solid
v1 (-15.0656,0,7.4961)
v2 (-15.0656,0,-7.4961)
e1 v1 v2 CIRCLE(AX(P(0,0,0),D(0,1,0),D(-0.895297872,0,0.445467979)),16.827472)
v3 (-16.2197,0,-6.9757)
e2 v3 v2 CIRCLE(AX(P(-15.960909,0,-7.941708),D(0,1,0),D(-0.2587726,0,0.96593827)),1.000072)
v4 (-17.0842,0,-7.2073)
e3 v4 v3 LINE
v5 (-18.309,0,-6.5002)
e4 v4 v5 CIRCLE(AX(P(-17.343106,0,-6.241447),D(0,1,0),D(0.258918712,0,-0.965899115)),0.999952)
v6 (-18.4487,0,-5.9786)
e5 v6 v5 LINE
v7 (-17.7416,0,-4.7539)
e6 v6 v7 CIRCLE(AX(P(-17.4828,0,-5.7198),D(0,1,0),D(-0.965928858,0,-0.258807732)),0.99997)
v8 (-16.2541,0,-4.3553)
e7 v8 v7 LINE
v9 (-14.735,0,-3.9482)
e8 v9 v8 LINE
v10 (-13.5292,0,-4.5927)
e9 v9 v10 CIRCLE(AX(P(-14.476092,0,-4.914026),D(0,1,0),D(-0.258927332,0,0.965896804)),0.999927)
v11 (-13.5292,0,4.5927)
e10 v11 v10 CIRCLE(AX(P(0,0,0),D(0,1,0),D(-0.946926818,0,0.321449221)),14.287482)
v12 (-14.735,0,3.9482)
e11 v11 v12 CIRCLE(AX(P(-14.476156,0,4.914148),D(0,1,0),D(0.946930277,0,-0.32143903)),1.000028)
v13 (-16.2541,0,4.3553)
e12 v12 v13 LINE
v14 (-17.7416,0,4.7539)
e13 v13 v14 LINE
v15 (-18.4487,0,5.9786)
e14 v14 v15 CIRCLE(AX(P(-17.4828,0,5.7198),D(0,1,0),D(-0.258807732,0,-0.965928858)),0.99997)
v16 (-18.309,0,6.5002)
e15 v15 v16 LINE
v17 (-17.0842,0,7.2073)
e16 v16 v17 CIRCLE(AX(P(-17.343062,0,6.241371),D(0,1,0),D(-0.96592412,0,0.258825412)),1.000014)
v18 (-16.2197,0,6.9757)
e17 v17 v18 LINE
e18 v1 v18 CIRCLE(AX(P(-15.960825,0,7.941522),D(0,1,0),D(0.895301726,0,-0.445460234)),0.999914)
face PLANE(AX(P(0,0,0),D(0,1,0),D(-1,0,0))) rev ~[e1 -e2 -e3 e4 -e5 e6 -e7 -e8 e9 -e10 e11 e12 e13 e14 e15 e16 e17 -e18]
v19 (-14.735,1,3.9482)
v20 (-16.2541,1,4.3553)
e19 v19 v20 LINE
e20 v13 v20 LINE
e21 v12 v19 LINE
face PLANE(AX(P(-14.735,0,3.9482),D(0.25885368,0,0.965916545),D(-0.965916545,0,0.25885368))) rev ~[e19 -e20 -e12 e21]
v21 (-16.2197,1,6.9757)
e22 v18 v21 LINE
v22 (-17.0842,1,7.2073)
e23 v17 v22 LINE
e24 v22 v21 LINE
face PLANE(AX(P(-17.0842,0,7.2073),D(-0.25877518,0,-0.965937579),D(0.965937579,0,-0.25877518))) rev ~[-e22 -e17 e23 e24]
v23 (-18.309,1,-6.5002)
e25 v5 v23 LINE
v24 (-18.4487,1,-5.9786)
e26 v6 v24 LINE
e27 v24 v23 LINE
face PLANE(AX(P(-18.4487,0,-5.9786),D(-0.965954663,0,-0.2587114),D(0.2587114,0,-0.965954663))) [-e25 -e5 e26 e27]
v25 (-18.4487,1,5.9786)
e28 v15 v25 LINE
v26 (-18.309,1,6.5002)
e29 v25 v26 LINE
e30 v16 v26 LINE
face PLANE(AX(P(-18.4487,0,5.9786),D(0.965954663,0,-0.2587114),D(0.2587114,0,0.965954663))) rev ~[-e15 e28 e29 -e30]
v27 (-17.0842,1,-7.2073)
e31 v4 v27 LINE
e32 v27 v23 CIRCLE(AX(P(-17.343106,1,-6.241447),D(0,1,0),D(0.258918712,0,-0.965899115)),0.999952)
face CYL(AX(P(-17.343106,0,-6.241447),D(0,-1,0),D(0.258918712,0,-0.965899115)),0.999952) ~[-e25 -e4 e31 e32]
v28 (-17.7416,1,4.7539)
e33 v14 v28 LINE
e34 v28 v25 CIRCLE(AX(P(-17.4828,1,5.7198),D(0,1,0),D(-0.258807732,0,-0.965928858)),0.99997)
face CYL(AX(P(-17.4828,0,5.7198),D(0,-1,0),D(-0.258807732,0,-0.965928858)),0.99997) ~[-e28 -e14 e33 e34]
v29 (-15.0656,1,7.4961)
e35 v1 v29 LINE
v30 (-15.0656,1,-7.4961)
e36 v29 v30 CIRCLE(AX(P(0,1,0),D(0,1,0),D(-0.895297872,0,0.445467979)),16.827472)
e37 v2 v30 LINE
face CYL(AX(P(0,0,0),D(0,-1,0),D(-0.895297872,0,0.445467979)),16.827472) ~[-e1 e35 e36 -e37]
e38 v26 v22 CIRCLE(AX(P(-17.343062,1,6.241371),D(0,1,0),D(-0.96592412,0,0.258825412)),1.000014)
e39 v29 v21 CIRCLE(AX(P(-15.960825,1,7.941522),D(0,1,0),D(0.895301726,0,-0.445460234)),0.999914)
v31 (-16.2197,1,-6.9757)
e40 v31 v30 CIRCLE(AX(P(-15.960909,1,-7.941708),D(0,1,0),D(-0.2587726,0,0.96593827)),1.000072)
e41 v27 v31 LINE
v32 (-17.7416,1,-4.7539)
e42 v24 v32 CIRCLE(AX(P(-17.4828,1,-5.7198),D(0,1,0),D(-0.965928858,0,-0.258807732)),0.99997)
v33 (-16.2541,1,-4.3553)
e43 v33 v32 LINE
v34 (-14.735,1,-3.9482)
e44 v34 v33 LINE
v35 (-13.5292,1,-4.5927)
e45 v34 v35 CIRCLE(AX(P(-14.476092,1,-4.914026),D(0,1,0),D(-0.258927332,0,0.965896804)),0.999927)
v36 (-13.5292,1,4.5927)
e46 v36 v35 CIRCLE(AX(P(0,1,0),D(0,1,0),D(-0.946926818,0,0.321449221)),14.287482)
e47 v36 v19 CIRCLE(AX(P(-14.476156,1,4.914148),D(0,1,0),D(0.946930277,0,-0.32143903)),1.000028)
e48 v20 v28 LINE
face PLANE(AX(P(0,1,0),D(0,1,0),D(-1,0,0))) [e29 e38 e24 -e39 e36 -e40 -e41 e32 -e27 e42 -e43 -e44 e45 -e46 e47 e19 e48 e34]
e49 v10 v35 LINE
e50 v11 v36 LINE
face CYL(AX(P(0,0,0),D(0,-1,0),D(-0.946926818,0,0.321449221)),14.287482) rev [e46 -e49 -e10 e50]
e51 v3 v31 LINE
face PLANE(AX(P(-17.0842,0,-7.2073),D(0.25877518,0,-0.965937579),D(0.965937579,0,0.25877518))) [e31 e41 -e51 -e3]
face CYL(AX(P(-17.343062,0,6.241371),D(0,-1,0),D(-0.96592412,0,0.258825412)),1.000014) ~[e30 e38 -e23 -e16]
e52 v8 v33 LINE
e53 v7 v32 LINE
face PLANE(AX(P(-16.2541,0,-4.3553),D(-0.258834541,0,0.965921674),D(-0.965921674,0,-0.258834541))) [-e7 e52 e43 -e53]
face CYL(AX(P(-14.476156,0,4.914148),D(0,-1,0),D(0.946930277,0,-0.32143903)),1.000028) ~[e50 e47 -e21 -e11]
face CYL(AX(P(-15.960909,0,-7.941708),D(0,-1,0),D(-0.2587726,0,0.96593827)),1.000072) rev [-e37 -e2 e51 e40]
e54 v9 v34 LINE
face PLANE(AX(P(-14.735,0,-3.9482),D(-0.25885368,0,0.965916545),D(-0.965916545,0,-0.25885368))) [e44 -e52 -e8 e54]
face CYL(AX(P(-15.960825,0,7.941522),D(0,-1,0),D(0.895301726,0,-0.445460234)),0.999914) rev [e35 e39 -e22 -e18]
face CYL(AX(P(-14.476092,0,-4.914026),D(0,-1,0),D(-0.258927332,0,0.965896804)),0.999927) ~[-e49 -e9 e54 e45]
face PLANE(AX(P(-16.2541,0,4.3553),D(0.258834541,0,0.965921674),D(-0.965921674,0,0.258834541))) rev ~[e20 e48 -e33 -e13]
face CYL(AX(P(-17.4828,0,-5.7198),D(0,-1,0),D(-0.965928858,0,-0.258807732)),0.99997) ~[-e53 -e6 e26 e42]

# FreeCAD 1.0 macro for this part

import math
import FreeCAD as App
import Part
import Sketcher
Q = App.Units.Quantity

doc = App.newDocument("Part")
params = doc.addObject("Spreadsheet::Sheet", "Params")
for row, (alias, value) in enumerate([
    ("sketch1_radius", "1 mm"),
    ("sketch1_length", "1.54 mm"),
    ("sketch1_length2", "0.54 mm"),
    ("pad1_length", "1 mm"),
], start=1):
    params.set(f"A{row}", alias)
    params.set(f"B{row}", "=" + value)
    params.setAlias(f"B{row}", alias)

body = doc.addObject("PartDesign::Body", "Body")

sketch1 = doc.addObject("Sketcher::SketchObject", "Sketch")
body.addObject(sketch1)
sketch1.AttachmentSupport = (doc.XZ_Plane, [""])
sketch1.MapMode = "FlatFace"
sketch1.addGeometry([
    Part.ArcOfCircle(Part.Circle(App.Vector(0, 0, 0), App.Vector(0, 0, 1), 14.3), math.radians(-161), math.radians(161)),
    Part.ArcOfCircle(Part.Circle(App.Vector(-14.5, 4.9, 0), App.Vector(0, 0, 1), 1), math.radians(-105), math.radians(-19)),
    Part.LineSegment(App.Vector(-14.7, 3.9, 0), App.Vector(-16.3, 4.4, 0)),
    Part.LineSegment(App.Vector(-16.3, 4.4, 0), App.Vector(-17.7, 4.8, 0)),
    Part.ArcOfCircle(Part.Circle(App.Vector(-17.5, 5.7, 0), App.Vector(0, 0, 1), 1), math.radians(165), math.radians(255)),
    Part.LineSegment(App.Vector(-18.4, 6, 0), App.Vector(-18.3, 6.5, 0)),
    Part.ArcOfCircle(Part.Circle(App.Vector(-17.3, 6.2, 0), App.Vector(0, 0, 1), 1), math.radians(75), math.radians(165)),
    Part.LineSegment(App.Vector(-17.1, 7.2, 0), App.Vector(-16.2, 7, 0)),
    Part.ArcOfCircle(Part.Circle(App.Vector(-16, 7.9, 0), App.Vector(0, 0, 1), 1), math.radians(-105), math.radians(-26)),
    Part.ArcOfCircle(Part.Circle(App.Vector(0, 0, 0), App.Vector(0, 0, 1), 16.8), math.radians(-154), math.radians(154)),
    Part.ArcOfCircle(Part.Circle(App.Vector(-16, -7.9, 0), App.Vector(0, 0, 1), 1), math.radians(26), math.radians(105)),
    Part.LineSegment(App.Vector(-16.2, -7, 0), App.Vector(-17.1, -7.2, 0)),
    Part.ArcOfCircle(Part.Circle(App.Vector(-17.3, -6.2, 0), App.Vector(0, 0, 1), 1), math.radians(-165), math.radians(-75)),
    Part.LineSegment(App.Vector(-18.3, -6.5, 0), App.Vector(-18.4, -6, 0)),
    Part.ArcOfCircle(Part.Circle(App.Vector(-17.5, -5.7, 0), App.Vector(0, 0, 1), 1), math.radians(105), math.radians(195)),
    Part.LineSegment(App.Vector(-17.7, -4.8, 0), App.Vector(-16.3, -4.4, 0)),
    Part.LineSegment(App.Vector(-16.3, -4.4, 0), App.Vector(-14.7, -3.9, 0)),
    Part.ArcOfCircle(Part.Circle(App.Vector(-14.5, -4.9, 0), App.Vector(0, 0, 1), 1), math.radians(19), math.radians(105)),
], False)
sketch1.addConstraint([
    Sketcher.Constraint("Tangent", 0, 2, 1, 2),
    Sketcher.Constraint("Tangent", 1, 1, 2, 1),
    Sketcher.Constraint("Coincident", 2, 2, 3, 1),
    Sketcher.Constraint("Tangent", 3, 2, 4, 2),
    Sketcher.Constraint("Tangent", 4, 1, 5, 1),
    Sketcher.Constraint("Tangent", 5, 2, 6, 2),
    Sketcher.Constraint("Tangent", 6, 1, 7, 1),
    Sketcher.Constraint("Tangent", 7, 2, 8, 1),
    Sketcher.Constraint("Tangent", 8, 2, 9, 2),
    Sketcher.Constraint("Tangent", 9, 1, 10, 1),
    Sketcher.Constraint("Tangent", 10, 2, 11, 1),
    Sketcher.Constraint("Tangent", 11, 2, 12, 2),
    Sketcher.Constraint("Tangent", 12, 1, 13, 1),
    Sketcher.Constraint("Tangent", 13, 2, 14, 2),
    Sketcher.Constraint("Tangent", 14, 1, 15, 1),
    Sketcher.Constraint("Coincident", 15, 2, 16, 1),
    Sketcher.Constraint("Tangent", 16, 2, 17, 2),
    Sketcher.Constraint("Tangent", 17, 1, 0, 1),
    Sketcher.Constraint("Coincident", 0, 3, -1, 1),
    Sketcher.Constraint("Coincident", 9, 3, -1, 1),
    Sketcher.Constraint("Equal", 1, 4),
    Sketcher.Constraint("Equal", 4, 6),
    Sketcher.Constraint("Equal", 6, 8),
    Sketcher.Constraint("Equal", 8, 10),
    Sketcher.Constraint("Equal", 10, 12),
    Sketcher.Constraint("Equal", 12, 14),
    Sketcher.Constraint("Equal", 14, 17),
    Sketcher.Constraint("Symmetric", 6, 3, 12, 3, -1),
    Sketcher.Constraint("Symmetric", 4, 3, 14, 3, -1),
    Sketcher.Constraint("Symmetric", 2, 2, 15, 2, -1),
    Sketcher.Constraint("Parallel", 2, 3),
    Sketcher.Constraint("Perpendicular", 3, 5),
    Sketcher.Constraint("Perpendicular", 5, 7),
    Sketcher.Constraint("Perpendicular", 11, 13),
    Sketcher.Constraint("Parallel", 15, 16),
    Sketcher.Constraint("Radius", 1, 1.0),
    Sketcher.Constraint("Radius", 0, 14.2875),
    Sketcher.Constraint("Angle", 3, Q("164.999 deg")),
    Sketcher.Constraint("Radius", 9, 16.8275),
    Sketcher.Constraint("Distance", 3, 1.54),
    Sketcher.Constraint("Distance", 5, 0.54),
    Sketcher.Constraint("Distance", 7, 0.895),
    Sketcher.Constraint("DistanceX", 1, 3, -1, 1, 14.476),
])
sketch1.setExpression("Constraints[35]", "Params.sketch1_radius")
sketch1.setExpression("Constraints[39]", "Params.sketch1_length")
sketch1.setExpression("Constraints[40]", "Params.sketch1_length2")
pad1 = doc.addObject("PartDesign::Pad", "Pad")
body.addObject(pad1)
pad1.Profile = sketch1
pad1.setExpression("Length", "Params.pad1_length")
pad1.Reversed = True

doc.recompute()
